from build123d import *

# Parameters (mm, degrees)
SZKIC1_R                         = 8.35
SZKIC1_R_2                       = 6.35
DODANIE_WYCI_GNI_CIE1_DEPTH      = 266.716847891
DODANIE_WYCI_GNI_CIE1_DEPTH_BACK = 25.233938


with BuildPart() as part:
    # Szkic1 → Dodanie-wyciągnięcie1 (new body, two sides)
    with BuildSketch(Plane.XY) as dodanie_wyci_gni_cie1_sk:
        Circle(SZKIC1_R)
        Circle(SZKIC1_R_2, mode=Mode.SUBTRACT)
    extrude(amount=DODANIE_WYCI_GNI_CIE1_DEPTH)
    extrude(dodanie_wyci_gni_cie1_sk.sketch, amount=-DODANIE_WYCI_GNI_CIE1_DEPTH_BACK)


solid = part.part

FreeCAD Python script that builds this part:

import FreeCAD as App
import Part
import Sketcher
Q = App.Units.Quantity

doc = App.newDocument("Part")
body = doc.addObject("PartDesign::Body", "Body")

# Sketch on XY plane
sketch1 = body.newObject("Sketcher::SketchObject", "Sketch")
sketch1.AttachmentSupport = (doc.getObject("XY_Plane"), [""])
sketch1.MapMode = "FlatFace"
sketch1.addGeometry(Part.Circle(App.Vector(0, 0, 0), App.Vector(0, 0, 1), 8.35), False)
sketch1.addGeometry(Part.Circle(App.Vector(0, 0, 0), App.Vector(0, 0, 1), 6.35), False)
sketch1.addConstraint(Sketcher.Constraint("Coincident", 0, 3, -1, 1))
sketch1.addConstraint(Sketcher.Constraint("Coincident", 1, 3, -1, 1))
sketch1.addConstraint(Sketcher.Constraint("Diameter", 0, Q("16.7 mm")))
sketch1.addConstraint(Sketcher.Constraint("Diameter", 1, Q("12.7 mm")))
pad1 = body.newObject("PartDesign::Pad", "Pad")
pad1.Profile = sketch1
pad1.Type = "TwoLengths"
pad1.Length = 266.716848
pad1.Length2 = 25.233938

doc.recompute()
